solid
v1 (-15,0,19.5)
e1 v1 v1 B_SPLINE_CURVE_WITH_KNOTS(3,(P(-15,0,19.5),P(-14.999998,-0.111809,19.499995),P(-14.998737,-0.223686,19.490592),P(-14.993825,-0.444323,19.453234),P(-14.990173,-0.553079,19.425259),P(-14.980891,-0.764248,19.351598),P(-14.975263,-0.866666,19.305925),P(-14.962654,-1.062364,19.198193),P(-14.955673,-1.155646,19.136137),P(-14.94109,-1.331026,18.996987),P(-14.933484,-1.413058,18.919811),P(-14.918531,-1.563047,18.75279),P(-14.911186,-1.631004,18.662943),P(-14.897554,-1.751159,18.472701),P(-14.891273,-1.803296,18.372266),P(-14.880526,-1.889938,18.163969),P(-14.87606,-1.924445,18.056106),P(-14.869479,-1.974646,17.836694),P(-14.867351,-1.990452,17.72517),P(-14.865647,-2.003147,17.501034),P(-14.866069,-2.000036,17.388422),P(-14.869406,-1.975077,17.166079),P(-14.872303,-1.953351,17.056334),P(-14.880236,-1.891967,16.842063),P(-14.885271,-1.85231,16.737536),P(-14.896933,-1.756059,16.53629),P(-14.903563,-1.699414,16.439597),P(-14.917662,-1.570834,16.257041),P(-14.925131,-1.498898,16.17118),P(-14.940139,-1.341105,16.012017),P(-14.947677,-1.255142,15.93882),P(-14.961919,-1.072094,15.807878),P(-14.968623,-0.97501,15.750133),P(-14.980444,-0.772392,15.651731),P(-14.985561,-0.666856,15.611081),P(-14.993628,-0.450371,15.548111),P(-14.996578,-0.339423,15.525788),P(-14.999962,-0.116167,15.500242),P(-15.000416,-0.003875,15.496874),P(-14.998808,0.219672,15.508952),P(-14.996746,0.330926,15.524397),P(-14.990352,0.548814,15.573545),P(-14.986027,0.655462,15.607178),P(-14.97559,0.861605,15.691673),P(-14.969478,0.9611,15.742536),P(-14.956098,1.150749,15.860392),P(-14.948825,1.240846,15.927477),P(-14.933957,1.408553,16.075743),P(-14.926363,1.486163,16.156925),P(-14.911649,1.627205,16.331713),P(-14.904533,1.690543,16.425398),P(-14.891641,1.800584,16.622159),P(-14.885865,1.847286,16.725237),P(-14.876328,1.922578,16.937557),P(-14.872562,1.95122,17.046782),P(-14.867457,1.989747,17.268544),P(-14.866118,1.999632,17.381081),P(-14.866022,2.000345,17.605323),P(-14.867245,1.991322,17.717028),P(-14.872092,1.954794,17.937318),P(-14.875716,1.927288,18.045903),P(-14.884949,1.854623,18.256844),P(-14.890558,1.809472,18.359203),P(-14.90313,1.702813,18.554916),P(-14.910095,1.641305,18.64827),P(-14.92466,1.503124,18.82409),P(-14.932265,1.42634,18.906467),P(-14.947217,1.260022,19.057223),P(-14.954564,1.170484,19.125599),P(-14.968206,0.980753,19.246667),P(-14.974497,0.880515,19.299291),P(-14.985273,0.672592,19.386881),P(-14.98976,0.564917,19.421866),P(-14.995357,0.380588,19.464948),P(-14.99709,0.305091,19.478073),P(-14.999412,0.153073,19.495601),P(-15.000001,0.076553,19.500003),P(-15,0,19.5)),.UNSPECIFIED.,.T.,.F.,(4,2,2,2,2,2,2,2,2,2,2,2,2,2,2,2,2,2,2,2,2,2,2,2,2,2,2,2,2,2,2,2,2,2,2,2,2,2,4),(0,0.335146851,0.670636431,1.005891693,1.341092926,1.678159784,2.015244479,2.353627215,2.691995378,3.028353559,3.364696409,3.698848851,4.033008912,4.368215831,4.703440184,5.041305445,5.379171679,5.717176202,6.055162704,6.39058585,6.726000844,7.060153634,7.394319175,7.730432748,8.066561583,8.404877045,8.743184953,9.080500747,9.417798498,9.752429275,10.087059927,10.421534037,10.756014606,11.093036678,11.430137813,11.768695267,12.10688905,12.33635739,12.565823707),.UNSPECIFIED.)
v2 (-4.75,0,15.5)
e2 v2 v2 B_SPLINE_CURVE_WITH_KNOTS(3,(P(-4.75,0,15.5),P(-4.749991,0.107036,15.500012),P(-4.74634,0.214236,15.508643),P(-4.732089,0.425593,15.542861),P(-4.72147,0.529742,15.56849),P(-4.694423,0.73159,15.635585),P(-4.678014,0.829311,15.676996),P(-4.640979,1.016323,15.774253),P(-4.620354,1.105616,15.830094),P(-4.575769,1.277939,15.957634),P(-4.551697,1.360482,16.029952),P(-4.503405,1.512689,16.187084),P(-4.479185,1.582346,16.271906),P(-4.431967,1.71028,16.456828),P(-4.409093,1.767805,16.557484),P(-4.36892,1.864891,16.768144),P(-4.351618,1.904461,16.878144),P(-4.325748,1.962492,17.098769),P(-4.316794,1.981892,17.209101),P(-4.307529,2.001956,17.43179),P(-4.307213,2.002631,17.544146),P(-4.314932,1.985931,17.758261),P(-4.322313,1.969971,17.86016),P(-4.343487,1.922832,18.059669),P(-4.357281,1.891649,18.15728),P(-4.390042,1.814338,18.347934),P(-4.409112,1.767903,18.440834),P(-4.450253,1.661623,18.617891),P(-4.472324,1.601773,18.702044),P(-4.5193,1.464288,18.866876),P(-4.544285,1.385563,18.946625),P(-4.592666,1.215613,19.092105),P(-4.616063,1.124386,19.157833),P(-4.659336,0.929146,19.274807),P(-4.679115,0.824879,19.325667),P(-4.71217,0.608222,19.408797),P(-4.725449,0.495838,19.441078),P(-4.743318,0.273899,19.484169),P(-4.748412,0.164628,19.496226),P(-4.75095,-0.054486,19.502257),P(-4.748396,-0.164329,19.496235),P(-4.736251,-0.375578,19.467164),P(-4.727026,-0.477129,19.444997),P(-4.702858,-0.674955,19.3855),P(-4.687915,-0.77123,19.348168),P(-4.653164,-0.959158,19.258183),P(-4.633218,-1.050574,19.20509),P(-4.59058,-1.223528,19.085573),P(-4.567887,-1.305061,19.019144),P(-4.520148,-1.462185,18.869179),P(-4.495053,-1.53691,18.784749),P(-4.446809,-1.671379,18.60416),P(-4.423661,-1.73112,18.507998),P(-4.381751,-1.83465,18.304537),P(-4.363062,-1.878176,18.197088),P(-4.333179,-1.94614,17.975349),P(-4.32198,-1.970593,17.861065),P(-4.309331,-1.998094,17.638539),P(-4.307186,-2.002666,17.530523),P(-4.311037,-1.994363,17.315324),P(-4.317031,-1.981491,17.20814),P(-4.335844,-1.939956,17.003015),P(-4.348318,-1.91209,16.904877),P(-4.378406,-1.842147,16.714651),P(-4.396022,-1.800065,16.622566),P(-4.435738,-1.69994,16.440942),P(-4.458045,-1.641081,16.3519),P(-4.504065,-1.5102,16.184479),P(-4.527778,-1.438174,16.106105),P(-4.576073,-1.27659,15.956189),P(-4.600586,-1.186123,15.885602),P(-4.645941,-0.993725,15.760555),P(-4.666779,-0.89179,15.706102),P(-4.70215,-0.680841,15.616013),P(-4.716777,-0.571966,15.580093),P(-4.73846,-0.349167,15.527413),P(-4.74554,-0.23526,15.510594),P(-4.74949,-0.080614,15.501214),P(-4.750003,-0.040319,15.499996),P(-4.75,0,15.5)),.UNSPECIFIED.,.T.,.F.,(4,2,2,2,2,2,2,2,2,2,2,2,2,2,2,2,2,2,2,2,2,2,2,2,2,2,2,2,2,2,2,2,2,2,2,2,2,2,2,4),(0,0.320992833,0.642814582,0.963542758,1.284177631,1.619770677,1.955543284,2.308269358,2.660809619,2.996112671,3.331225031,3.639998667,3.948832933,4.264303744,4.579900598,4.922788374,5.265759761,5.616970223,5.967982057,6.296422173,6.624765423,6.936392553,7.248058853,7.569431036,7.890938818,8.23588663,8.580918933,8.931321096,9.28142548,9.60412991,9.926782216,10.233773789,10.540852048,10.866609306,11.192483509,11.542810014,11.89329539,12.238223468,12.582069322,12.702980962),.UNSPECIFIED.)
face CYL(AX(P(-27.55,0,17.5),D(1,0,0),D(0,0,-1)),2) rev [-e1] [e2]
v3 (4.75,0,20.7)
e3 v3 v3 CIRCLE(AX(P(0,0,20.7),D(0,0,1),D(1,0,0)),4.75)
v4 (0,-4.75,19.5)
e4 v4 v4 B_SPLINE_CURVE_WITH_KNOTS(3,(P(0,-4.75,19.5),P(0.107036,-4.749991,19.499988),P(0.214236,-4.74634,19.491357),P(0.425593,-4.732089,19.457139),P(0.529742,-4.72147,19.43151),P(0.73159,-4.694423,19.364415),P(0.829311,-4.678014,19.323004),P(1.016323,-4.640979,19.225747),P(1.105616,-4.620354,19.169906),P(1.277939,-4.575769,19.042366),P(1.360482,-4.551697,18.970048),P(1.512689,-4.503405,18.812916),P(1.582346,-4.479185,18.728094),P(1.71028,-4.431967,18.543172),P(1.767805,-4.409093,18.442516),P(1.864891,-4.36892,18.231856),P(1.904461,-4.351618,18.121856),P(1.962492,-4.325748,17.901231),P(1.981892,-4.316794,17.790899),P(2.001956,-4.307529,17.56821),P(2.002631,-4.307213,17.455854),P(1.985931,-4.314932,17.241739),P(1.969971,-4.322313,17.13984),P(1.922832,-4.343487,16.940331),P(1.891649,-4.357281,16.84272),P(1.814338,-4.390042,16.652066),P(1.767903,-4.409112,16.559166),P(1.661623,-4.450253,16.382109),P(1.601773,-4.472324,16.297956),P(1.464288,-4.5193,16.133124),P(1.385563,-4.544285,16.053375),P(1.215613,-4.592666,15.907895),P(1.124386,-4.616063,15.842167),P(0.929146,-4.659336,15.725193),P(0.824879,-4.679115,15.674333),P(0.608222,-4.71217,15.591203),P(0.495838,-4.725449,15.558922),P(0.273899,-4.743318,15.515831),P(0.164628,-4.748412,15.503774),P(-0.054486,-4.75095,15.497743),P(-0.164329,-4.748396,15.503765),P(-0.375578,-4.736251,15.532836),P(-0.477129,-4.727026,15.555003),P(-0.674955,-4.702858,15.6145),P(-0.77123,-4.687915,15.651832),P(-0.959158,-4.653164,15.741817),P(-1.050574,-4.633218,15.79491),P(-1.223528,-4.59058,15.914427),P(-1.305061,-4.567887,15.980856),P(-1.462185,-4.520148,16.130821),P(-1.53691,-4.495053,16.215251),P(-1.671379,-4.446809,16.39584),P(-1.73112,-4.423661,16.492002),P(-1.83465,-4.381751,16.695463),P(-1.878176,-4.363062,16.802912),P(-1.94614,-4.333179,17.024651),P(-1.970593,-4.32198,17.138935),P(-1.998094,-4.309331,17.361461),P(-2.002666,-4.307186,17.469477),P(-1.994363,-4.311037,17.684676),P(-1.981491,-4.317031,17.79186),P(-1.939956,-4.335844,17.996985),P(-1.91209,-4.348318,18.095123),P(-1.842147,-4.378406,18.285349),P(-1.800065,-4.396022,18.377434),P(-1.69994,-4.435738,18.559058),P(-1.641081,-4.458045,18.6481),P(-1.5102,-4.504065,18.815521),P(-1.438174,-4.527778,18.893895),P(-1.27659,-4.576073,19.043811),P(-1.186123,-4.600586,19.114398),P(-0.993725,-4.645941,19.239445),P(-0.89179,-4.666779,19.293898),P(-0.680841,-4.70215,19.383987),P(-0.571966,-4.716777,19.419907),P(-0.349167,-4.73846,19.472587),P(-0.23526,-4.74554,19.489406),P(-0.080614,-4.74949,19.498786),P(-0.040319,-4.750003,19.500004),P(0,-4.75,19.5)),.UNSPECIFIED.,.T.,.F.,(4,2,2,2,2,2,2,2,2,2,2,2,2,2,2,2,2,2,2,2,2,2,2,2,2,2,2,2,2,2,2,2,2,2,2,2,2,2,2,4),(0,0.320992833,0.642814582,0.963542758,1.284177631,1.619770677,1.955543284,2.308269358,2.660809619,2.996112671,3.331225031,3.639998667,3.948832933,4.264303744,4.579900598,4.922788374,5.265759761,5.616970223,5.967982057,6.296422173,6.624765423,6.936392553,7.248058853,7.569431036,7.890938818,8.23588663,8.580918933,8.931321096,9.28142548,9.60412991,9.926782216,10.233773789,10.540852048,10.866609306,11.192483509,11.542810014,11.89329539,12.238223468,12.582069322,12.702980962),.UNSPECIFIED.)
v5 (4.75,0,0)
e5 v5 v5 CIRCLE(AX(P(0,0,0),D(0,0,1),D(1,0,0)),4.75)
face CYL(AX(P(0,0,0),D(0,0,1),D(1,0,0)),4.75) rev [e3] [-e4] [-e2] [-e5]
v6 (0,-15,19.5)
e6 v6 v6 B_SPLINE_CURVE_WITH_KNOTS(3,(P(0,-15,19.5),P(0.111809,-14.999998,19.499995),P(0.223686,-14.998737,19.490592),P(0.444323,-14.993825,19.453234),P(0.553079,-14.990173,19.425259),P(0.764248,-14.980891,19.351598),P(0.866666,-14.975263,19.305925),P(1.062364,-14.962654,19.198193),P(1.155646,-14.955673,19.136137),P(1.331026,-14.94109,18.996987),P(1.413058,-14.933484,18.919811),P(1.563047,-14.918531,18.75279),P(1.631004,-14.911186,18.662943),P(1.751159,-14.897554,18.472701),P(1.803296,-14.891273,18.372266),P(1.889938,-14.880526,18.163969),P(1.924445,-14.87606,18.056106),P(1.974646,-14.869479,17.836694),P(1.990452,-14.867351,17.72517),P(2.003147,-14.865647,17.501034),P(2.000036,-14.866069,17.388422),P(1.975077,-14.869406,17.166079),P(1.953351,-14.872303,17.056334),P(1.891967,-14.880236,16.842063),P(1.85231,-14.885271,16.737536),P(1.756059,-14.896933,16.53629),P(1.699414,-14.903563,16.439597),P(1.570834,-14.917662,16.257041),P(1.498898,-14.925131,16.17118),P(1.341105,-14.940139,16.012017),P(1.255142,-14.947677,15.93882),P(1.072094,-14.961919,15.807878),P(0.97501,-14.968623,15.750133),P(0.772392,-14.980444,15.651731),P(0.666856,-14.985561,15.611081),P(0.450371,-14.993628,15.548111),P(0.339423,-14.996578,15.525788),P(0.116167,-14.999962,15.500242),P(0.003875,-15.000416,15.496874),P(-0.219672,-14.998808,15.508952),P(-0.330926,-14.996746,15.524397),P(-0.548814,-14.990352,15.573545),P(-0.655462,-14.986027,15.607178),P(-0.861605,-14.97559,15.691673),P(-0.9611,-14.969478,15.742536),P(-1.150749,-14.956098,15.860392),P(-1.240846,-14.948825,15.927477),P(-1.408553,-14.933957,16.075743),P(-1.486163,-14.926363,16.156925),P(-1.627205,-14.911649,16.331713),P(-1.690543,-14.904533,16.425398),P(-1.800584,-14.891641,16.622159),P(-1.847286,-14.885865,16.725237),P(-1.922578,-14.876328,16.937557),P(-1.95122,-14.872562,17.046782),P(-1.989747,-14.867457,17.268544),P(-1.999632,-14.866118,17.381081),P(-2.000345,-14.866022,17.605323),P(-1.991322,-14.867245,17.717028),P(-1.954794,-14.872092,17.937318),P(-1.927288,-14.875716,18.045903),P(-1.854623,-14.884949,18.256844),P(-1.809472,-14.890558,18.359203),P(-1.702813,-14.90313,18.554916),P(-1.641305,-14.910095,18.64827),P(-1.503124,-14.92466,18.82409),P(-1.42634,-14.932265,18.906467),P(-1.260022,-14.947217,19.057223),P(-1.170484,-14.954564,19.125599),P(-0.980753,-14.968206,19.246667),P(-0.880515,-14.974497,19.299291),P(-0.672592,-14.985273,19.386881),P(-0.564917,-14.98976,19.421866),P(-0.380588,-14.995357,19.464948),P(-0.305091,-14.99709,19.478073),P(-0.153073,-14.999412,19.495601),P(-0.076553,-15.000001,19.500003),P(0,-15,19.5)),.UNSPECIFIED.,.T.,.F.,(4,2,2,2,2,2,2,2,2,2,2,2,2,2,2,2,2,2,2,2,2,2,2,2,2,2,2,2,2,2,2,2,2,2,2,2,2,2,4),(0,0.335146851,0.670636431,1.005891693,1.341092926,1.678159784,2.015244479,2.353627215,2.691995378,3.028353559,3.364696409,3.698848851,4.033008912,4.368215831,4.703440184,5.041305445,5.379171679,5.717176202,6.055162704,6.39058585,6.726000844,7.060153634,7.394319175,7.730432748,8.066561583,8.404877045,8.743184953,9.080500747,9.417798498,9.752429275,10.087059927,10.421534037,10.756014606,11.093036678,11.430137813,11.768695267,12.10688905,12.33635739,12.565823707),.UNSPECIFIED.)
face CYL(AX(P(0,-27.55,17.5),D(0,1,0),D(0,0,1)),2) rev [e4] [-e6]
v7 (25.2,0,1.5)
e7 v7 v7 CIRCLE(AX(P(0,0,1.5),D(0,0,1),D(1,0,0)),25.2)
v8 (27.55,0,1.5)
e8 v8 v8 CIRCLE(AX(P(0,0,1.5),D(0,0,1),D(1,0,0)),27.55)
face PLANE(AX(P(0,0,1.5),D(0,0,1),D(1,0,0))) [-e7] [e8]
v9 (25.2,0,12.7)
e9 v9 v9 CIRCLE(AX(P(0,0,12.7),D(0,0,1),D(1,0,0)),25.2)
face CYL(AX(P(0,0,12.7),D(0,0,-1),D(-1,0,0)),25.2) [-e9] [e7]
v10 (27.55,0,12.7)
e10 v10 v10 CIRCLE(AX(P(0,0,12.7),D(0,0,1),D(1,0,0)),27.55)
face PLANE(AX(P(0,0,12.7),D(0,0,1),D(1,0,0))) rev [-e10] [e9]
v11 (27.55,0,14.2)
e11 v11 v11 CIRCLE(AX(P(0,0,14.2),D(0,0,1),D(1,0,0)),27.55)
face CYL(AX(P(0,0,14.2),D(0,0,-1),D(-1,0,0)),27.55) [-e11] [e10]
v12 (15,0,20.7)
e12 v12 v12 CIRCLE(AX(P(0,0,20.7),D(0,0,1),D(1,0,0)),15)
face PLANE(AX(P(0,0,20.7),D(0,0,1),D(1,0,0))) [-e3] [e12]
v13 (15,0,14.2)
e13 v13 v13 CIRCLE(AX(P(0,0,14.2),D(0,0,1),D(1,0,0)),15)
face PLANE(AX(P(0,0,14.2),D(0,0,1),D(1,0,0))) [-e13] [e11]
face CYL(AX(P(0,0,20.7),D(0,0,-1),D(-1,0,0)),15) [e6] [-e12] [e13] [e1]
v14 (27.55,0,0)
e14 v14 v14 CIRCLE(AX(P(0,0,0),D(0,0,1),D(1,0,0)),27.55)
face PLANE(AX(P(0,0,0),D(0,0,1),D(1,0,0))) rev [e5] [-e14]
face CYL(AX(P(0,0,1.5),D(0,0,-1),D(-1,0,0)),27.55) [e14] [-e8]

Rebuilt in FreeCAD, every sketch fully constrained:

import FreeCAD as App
import Part
import Sketcher
from FreeCAD import Vector
Q = App.Units.Quantity

doc = App.newDocument("Part")
body = doc.addObject("PartDesign::Body", "Body")

sketch1 = doc.addObject("Sketcher::SketchObject", "Sketch")
body.addObject(sketch1)
sketch1.AttachmentSupport = (doc.XY_Plane, [""])
sketch1.MapMode = "FlatFace"
sketch1.addGeometry(Part.Circle(Vector(0, 0, 0), Vector(0, 0, 1), 28), False)
sketch1.addConstraint(Sketcher.Constraint("Coincident", 0, 3, -1, 1))
sketch1.addConstraint(Sketcher.Constraint("Diameter", 0, Q("55.1 mm")))
pad1 = doc.addObject("PartDesign::Pad", "Pad")
body.addObject(pad1)
pad1.Profile = sketch1
pad1.Length = 1.5

sketch2 = doc.addObject("Sketcher::SketchObject", "Sketch001")
body.addObject(sketch2)
sketch2.AttachmentSupport = (doc.XY_Plane, [""])
sketch2.MapMode = "FlatFace"
sketch2.AttachmentOffset = App.Placement(Vector(0, 0, 1.5), App.Rotation())
sketch2.addGeometry(Part.Circle(Vector(0, 0, 0), Vector(0, 0, 1), 25), False)
sketch2.addConstraint(Sketcher.Constraint("Coincident", 0, 3, -1, 1))
sketch2.addConstraint(Sketcher.Constraint("Diameter", 0, Q("50.4 mm")))
pad2 = doc.addObject("PartDesign::Pad", "Pad001")
body.addObject(pad2)
pad2.Profile = sketch2
pad2.Length = 11.2

sketch3 = doc.addObject("Sketcher::SketchObject", "Sketch002")
body.addObject(sketch3)
sketch3.AttachmentSupport = (doc.XY_Plane, [""])
sketch3.MapMode = "FlatFace"
sketch3.AttachmentOffset = App.Placement(Vector(0, 0, 12.7), App.Rotation())
sketch3.addGeometry(Part.Circle(Vector(0, 0, 0), Vector(0, 0, 1), 28), False)
sketch3.addConstraint(Sketcher.Constraint("Coincident", 0, 3, -1, 1))
sketch3.addConstraint(Sketcher.Constraint("Diameter", 0, Q("55.1 mm")))
pad3 = doc.addObject("PartDesign::Pad", "Pad002")
body.addObject(pad3)
pad3.Profile = sketch3
pad3.Length = 1.5

sketch4 = doc.addObject("Sketcher::SketchObject", "Sketch003")
body.addObject(sketch4)
sketch4.AttachmentSupport = (doc.XY_Plane, [""])
sketch4.MapMode = "FlatFace"
sketch4.AttachmentOffset = App.Placement(Vector(0, 0, 14.2), App.Rotation())
sketch4.addGeometry(Part.Circle(Vector(0, 0, 0), Vector(0, 0, 1), 15), False)
sketch4.addConstraint(Sketcher.Constraint("Coincident", 0, 3, -1, 1))
sketch4.addConstraint(Sketcher.Constraint("Diameter", 0, Q("30 mm")))
pad4 = doc.addObject("PartDesign::Pad", "Pad003")
body.addObject(pad4)
pad4.Profile = sketch4
pad4.Length = 6.5

sketch5 = doc.addObject("Sketcher::SketchObject", "Sketch004")
body.addObject(sketch5)
sketch5.AttachmentSupport = (doc.XZ_Plane, [""])
sketch5.MapMode = "FlatFace"
sketch5.addGeometry(Part.Circle(Vector(0, 17.5, 0), Vector(0, 0, 1), 2), False)
sketch5.addConstraint(Sketcher.Constraint("PointOnObject", 0, 3, -2))
sketch5.addConstraint(Sketcher.Constraint("Diameter", 0, Q("4 mm")))
sketch5.addConstraint(Sketcher.Constraint("DistanceY", -1, 1, 0, 3, Q("17.5 mm")))
pocket1 = doc.addObject("PartDesign::Pocket", "Pocket")
body.addObject(pocket1)
pocket1.Profile = sketch5
pocket1.Type = "ThroughAll"
pocket1.Reversed = True

sketch6 = doc.addObject("Sketcher::SketchObject", "Sketch005")
body.addObject(sketch6)
sketch6.AttachmentSupport = (doc.YZ_Plane, [""])
sketch6.MapMode = "FlatFace"
sketch6.addGeometry(Part.Circle(Vector(0, 17.5, 0), Vector(0, 0, 1), 2), False)
sketch6.addConstraint(Sketcher.Constraint("PointOnObject", 0, 3, -2))
sketch6.addConstraint(Sketcher.Constraint("Diameter", 0, Q("4 mm")))
sketch6.addConstraint(Sketcher.Constraint("DistanceY", -1, 1, 0, 3, Q("17.5 mm")))
pocket2 = doc.addObject("PartDesign::Pocket", "Pocket001")
body.addObject(pocket2)
pocket2.Profile = sketch6
pocket2.Type = "ThroughAll"

sketch7 = doc.addObject("Sketcher::SketchObject", "Sketch006")
body.addObject(sketch7)
sketch7.AttachmentSupport = (doc.XY_Plane, [""])
sketch7.MapMode = "FlatFace"
sketch7.AttachmentOffset = App.Placement(Vector(0, 0, 20.7), App.Rotation())
sketch7.addGeometry(Part.Circle(Vector(0, 0, 0), Vector(0, 0, 1), 4.8), False)
sketch7.addConstraint(Sketcher.Constraint("Coincident", 0, 3, -1, 1))
sketch7.addConstraint(Sketcher.Constraint("Diameter", 0, Q("9.5 mm")))
pocket3 = doc.addObject("PartDesign::Pocket", "Pocket002")
body.addObject(pocket3)
pocket3.Profile = sketch7
pocket3.Type = "ThroughAll"

doc.recompute()
